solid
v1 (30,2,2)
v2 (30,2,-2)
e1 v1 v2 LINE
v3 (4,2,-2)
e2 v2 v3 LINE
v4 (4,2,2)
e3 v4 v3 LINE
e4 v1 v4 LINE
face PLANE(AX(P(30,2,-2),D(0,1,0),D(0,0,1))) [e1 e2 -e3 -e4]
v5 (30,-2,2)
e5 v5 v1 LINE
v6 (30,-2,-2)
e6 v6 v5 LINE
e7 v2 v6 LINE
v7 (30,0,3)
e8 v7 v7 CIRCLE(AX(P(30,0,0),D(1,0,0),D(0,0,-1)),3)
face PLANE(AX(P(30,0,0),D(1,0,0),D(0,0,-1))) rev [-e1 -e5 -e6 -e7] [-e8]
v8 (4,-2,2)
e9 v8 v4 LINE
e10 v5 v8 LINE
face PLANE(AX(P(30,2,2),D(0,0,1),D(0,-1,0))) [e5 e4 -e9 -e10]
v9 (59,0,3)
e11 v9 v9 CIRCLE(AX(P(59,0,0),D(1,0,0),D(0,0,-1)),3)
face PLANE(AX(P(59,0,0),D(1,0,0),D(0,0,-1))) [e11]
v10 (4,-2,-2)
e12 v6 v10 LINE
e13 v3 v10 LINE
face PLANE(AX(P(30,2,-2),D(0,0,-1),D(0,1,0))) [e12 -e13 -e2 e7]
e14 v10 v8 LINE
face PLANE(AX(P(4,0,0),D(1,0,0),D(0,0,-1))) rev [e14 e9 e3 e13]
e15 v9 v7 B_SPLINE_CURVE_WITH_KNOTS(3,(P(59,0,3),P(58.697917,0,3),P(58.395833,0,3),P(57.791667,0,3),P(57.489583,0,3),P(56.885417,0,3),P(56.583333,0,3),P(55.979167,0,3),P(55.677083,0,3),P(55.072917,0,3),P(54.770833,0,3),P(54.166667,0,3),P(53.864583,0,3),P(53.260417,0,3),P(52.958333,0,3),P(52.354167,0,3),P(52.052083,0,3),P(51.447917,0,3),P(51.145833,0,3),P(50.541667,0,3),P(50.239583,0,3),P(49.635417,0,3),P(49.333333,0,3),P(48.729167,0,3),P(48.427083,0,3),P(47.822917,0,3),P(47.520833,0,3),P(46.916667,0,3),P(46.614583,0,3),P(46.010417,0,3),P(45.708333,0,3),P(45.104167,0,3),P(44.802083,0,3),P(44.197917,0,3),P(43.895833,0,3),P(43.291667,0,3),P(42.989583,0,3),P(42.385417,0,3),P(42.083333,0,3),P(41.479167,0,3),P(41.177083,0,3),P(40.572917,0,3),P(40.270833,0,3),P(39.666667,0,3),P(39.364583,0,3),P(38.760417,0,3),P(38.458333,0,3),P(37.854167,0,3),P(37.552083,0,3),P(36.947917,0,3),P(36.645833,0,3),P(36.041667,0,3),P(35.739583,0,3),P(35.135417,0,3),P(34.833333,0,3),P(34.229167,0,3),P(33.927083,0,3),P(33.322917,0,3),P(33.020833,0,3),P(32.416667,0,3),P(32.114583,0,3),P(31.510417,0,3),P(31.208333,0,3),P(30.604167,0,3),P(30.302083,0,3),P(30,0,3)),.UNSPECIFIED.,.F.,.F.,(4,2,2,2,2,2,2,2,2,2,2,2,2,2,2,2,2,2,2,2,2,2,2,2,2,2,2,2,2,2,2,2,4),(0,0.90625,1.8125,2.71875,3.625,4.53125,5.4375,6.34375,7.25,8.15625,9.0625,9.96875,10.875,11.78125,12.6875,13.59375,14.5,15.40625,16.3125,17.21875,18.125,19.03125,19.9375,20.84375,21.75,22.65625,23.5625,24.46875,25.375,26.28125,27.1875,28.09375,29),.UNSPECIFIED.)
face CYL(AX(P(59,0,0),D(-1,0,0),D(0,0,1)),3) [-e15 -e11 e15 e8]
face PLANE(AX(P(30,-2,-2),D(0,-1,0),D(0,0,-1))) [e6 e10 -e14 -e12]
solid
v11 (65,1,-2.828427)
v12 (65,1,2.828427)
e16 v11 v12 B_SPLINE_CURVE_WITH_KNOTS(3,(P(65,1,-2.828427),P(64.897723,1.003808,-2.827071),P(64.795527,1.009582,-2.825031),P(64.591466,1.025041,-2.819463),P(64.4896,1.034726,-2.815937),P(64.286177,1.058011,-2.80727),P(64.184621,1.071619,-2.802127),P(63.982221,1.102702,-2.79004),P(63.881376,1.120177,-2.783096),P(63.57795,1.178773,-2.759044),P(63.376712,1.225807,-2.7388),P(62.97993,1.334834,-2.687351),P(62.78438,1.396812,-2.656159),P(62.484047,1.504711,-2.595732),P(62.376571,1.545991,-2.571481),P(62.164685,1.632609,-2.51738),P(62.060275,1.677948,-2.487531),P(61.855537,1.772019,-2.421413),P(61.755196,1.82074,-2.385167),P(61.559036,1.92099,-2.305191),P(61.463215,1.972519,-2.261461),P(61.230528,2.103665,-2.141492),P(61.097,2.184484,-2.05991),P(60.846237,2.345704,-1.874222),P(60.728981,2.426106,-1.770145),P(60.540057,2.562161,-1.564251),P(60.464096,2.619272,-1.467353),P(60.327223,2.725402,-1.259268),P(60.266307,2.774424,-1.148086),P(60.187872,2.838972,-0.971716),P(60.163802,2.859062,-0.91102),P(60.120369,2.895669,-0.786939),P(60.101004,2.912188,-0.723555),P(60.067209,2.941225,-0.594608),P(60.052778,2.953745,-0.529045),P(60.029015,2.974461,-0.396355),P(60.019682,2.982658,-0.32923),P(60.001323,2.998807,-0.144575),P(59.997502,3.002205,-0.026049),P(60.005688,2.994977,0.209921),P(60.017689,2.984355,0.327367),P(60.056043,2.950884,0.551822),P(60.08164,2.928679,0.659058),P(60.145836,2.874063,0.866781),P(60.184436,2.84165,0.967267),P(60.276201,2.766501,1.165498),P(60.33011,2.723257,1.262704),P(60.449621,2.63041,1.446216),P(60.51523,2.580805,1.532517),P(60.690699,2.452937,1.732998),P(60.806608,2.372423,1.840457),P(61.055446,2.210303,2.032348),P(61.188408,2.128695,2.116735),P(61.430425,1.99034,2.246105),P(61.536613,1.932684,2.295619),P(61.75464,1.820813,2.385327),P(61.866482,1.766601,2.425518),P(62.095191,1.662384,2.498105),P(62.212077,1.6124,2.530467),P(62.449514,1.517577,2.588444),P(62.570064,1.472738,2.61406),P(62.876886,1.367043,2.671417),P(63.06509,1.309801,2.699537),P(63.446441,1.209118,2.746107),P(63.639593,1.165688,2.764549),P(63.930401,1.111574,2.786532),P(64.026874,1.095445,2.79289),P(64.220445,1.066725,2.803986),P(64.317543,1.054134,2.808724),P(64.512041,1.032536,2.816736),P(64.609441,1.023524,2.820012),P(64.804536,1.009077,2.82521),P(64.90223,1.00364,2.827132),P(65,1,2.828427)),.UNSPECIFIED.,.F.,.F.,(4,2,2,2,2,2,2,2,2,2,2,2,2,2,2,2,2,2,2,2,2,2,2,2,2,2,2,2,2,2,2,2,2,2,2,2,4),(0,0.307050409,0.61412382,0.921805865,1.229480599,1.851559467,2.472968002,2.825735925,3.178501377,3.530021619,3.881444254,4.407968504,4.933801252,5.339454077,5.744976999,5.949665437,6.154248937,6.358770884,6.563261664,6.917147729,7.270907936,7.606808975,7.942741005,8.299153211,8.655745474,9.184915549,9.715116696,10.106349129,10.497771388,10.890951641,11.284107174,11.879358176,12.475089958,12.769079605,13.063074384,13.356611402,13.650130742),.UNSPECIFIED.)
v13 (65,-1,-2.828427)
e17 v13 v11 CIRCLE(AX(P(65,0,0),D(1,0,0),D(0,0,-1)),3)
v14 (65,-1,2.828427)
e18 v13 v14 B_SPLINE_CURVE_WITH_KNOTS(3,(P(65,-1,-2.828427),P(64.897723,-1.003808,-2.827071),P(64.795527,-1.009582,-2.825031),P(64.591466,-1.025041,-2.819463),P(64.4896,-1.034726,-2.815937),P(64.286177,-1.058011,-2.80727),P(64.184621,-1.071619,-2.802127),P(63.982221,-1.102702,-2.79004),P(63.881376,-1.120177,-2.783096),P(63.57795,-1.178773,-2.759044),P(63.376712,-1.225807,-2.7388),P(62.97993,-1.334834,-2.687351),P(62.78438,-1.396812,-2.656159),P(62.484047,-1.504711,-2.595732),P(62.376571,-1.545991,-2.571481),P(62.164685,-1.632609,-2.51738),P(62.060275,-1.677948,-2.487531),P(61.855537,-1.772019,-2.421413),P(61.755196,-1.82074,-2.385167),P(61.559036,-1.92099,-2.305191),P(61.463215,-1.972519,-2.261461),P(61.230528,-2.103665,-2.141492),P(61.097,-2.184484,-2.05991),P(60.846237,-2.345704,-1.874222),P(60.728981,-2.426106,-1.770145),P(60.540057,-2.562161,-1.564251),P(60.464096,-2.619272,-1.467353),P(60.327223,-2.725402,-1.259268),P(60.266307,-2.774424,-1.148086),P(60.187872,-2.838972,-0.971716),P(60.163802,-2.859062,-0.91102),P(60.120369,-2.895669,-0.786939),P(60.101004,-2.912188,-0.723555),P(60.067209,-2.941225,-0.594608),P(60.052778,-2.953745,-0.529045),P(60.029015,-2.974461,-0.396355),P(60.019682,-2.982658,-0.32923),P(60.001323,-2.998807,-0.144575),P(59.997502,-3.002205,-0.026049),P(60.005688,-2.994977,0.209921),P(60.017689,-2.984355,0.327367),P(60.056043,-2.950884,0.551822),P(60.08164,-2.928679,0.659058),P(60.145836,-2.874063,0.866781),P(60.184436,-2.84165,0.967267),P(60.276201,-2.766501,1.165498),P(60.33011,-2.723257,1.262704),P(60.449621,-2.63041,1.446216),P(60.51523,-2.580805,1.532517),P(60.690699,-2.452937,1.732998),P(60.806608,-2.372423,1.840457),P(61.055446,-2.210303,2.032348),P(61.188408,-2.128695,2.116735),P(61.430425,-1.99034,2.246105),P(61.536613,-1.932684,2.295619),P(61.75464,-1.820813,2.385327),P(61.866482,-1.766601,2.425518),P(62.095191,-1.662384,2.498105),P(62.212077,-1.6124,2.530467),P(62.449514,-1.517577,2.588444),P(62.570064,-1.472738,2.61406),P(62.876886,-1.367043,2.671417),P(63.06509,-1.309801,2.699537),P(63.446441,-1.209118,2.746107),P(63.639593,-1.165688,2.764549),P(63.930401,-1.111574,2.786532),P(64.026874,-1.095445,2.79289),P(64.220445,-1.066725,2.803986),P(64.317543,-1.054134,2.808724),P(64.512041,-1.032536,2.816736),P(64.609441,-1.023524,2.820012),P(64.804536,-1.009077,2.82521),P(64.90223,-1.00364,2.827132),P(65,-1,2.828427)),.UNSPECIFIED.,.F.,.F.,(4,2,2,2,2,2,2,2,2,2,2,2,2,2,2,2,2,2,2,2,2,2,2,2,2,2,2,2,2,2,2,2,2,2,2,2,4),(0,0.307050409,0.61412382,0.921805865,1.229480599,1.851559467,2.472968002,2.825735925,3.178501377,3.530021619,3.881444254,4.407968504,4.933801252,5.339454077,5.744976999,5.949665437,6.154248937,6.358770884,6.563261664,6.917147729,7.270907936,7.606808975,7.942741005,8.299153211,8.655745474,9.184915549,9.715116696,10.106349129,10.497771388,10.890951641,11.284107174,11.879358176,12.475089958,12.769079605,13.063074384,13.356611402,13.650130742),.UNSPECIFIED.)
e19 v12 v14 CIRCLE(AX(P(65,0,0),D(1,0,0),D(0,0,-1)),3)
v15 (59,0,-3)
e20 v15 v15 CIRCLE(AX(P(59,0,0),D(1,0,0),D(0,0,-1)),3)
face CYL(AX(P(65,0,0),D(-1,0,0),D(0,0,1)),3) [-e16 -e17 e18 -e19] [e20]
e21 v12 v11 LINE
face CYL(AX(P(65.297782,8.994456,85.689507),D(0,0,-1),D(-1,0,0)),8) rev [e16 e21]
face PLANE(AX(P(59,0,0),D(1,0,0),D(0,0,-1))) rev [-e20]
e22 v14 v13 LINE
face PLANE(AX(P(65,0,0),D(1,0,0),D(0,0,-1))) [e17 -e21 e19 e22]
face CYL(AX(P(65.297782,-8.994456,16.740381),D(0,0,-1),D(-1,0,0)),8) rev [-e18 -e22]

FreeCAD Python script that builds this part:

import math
import FreeCAD as App
import Part
import Sketcher

V = App.Vector
Q = App.Units.Quantity


def add_polygon(sketch, points):
    """Adds a closed chain of lines whose ends are joined by coincident constraints."""
    first, n = sketch.GeometryCount, len(points)
    for a, b in zip(points, points[1:] + points[:1]):
        sketch.addGeometry(Part.LineSegment(App.Vector(*a, 0), App.Vector(*b, 0)), False)
    for i in range(n):
        sketch.addConstraint(Sketcher.Constraint("Coincident", first + i, 2, first + (i + 1) % n, 1))

doc = App.newDocument("Part")
body = doc.addObject("PartDesign::Body", "Body")

# Sketch on YZ plane
sketch1 = doc.addObject("Sketcher::SketchObject", "Sketch")
body.addObject(sketch1)
sketch1.AttachmentSupport = (doc.YZ_Plane, [""])
sketch1.MapMode = "FlatFace"
add_polygon(sketch1, [(-1, 1), (-1, -1), (1, -1), (1, 1)])  # lines 0-3
sketch1.addConstraint([
    Sketcher.Constraint("Vertical", 0),
    Sketcher.Constraint("Horizontal", 1),
    Sketcher.Constraint("Vertical", 2),
    Sketcher.Constraint("Horizontal", 3),
    Sketcher.Constraint("Symmetric", 0, 2, 2, 2, -1, 1),
    Sketcher.Constraint("Equal", 3, 0),
    Sketcher.Constraint("DistanceX", 1, 1, 1, 2, Q("2 mm")),
])

# Sketch on YZ plane
sketch2 = doc.addObject("Sketcher::SketchObject", "Sketch001")
body.addObject(sketch2)
sketch2.AttachmentSupport = (doc.YZ_Plane, [""])
sketch2.MapMode = "FlatFace"
sketch2.AttachmentOffset = App.Placement(V(0, 0, 30), App.Rotation())
add_polygon(sketch2, [(-1, 1), (-1, -1), (1, -1), (1, 1)])  # lines 0-3
sketch2.addConstraint([
    Sketcher.Constraint("Vertical", 0),
    Sketcher.Constraint("Horizontal", 1),
    Sketcher.Constraint("Vertical", 2),
    Sketcher.Constraint("Horizontal", 3),
    Sketcher.Constraint("Symmetric", 0, 2, 2, 2, -1, 1),
    Sketcher.Constraint("Equal", 3, 0),
    Sketcher.Constraint("DistanceX", 1, 1, 1, 2, Q("2 mm")),
])

additiveloft = doc.addObject("PartDesign::AdditiveLoft", "AdditiveLoft")
body.addObject(additiveloft)
additiveloft.Profile = sketch1
additiveloft.Sections = [sketch2]

# Sketch on YZ plane
sketch3 = doc.addObject("Sketcher::SketchObject", "Sketch002")
body.addObject(sketch3)
sketch3.AttachmentSupport = (doc.YZ_Plane, [""])
sketch3.MapMode = "FlatFace"
sketch3.AttachmentOffset = App.Placement(V(0, 0, 30), App.Rotation())
sketch3.addGeometry(Part.Circle(V(0, 0, 0), V(0, 0, 1), 3), False)
sketch3.addConstraint([
    Sketcher.Constraint("Coincident", 0, 3, -1, 1),
    Sketcher.Constraint("Diameter", 0, Q("6 mm")),
])
pad1 = doc.addObject("PartDesign::Pad", "Pad")
body.addObject(pad1)
pad1.Profile = sketch3
pad1.Length = 29

# Sketch on YZ plane
sketch4 = doc.addObject("Sketcher::SketchObject", "Sketch003")
body.addObject(sketch4)
sketch4.AttachmentSupport = (doc.YZ_Plane, [""])
sketch4.MapMode = "FlatFace"
add_polygon(sketch4, [(2, -2), (-2, -2), (-2, 2), (2, 2)])  # lines 0-3
sketch4.addConstraint([
    Sketcher.Constraint("Horizontal", 0),
    Sketcher.Constraint("Vertical", 1),
    Sketcher.Constraint("Horizontal", 2),
    Sketcher.Constraint("Vertical", 3),
    Sketcher.Constraint("Symmetric", 0, 2, 2, 2, -1, 1),
    Sketcher.Constraint("Equal", 2, 1),
    Sketcher.Constraint("DistanceX", 0, 2, 0, 1, Q("4 mm")),
])
pad2 = doc.addObject("PartDesign::Pad", "Pad001")
body.addObject(pad2)
pad2.Profile = sketch4
pad2.Length = 30

# Sketch on YZ plane
sketch5 = doc.addObject("Sketcher::SketchObject", "Sketch004")
body.addObject(sketch5)
sketch5.AttachmentSupport = (doc.YZ_Plane, [""])
sketch5.MapMode = "FlatFace"
add_polygon(sketch5, [(2, -2), (-2, -2), (-2, 2), (2, 2)])  # lines 0-3
sketch5.addConstraint([
    Sketcher.Constraint("Horizontal", 0),
    Sketcher.Constraint("Vertical", 1),
    Sketcher.Constraint("Horizontal", 2),
    Sketcher.Constraint("Vertical", 3),
    Sketcher.Constraint("Symmetric", 0, 2, 2, 2, -1, 1),
    Sketcher.Constraint("Equal", 2, 1),
    Sketcher.Constraint("DistanceX", 0, 2, 0, 1, Q("4 mm")),
])
pocket1 = doc.addObject("PartDesign::Pocket", "Pocket")
body.addObject(pocket1)
pocket1.Profile = sketch5
pocket1.Length = 4
pocket1.Reversed = True
body2 = doc.addObject("PartDesign::Body", "Body001")

# Sketch on YZ plane
sketch6 = doc.addObject("Sketcher::SketchObject", "Sketch005")
body2.addObject(sketch6)
sketch6.AttachmentSupport = (doc.getObject("YZ_Plane001"), [""])
sketch6.MapMode = "FlatFace"
sketch6.AttachmentOffset = App.Placement(V(0, 0, 59), App.Rotation())
sketch6.addGeometry(Part.Circle(V(0, 0, 0), V(0, 0, 1), 3), False)
sketch6.addConstraint([
    Sketcher.Constraint("Coincident", 0, 3, -1, 1),
    Sketcher.Constraint("Diameter", 0, Q("6 mm")),
])
pad3 = doc.addObject("PartDesign::Pad", "Pad002")
body2.addObject(pad3)
pad3.Profile = sketch6
pad3.Length = 6

# Sketch on XY plane
sketch7 = doc.addObject("Sketcher::SketchObject", "Sketch006")
body2.addObject(sketch7)
sketch7.AttachmentSupport = (doc.getObject("XY_Plane001"), [""])
sketch7.MapMode = "FlatFace"
sketch7.addGeometry([
    Part.LineSegment(V(-45.087249, 95.874046, 0), V(60, 3, 0)),  # 0
    Part.ArcOfCircle(Part.Circle(V(65.297782, 8.994456, 0), V(0, 0, 1), 8), math.radians(-131.469617), math.radians(-92.133202)),  # 1
    Part.LineSegment(V(65, 1, 0), V(205.14873, -4.220345, 0)),  # 2
    Part.LineSegment(V(205.14873, -4.220345, 0), V(309.320785, 256.209793, 0)),  # 3
    Part.LineSegment(V(309.320785, 256.209793, 0), V(59.084806, 356.304184, 0)),  # 4
    Part.LineSegment(V(59.084806, 356.304184, 0), V(-45.087249, 95.874046, 0)),  # 5
], False)
sketch7.addConstraint([
    Sketcher.Constraint("Tangent", 0, 2, 1, 1),
    Sketcher.Constraint("Tangent", 1, 2, 2, 1),
    Sketcher.Constraint("Coincident", 2, 2, 3, 1),
    Sketcher.Constraint("Coincident", 3, 2, 4, 1),
    Sketcher.Constraint("Coincident", 4, 2, 5, 1),
    Sketcher.Constraint("Coincident", 5, 2, 0, 1),
    Sketcher.Constraint("Perpendicular", 3, 4),
    Sketcher.Constraint("Perpendicular", 4, 5),
    Sketcher.Constraint("Equal", 0, 2),
    Sketcher.Constraint("Equal", 3, 5),
    Sketcher.Constraint("Radius", 1, Q("8 mm")),
    Sketcher.Constraint("DistanceX", -1, 1, 0, 2, Q("60 mm")),
    Sketcher.Constraint("DistanceY", -1, 1, 0, 2, Q("3 mm")),
    Sketcher.Constraint("DistanceX", -1, 1, 1, 2, Q("65 mm")),
    Sketcher.Constraint("DistanceY", -1, 1, 1, 2, Q("1 mm")),
    Sketcher.Constraint("DistanceY", 2, 2, 1, 3, Q("13.214801 mm")),
    Sketcher.Constraint("DistanceY", 2, 2, 3, 2, Q("260.430138 mm")),
])
pocket2 = doc.addObject("PartDesign::Pocket", "Pocket001")
body2.addObject(pocket2)
pocket2.Profile = sketch7
pocket2.Length = 132.276629
pocket2.Midplane = True
doc.recompute()

mirrored = doc.addObject("PartDesign::Mirrored", "Mirrored")
body2.addObject(mirrored)
mirrored.Originals = [pocket2]
mirrored.MirrorPlane = (doc.getObject("XZ_Plane001"), [""])
body2.Tip = mirrored

doc.recompute()
